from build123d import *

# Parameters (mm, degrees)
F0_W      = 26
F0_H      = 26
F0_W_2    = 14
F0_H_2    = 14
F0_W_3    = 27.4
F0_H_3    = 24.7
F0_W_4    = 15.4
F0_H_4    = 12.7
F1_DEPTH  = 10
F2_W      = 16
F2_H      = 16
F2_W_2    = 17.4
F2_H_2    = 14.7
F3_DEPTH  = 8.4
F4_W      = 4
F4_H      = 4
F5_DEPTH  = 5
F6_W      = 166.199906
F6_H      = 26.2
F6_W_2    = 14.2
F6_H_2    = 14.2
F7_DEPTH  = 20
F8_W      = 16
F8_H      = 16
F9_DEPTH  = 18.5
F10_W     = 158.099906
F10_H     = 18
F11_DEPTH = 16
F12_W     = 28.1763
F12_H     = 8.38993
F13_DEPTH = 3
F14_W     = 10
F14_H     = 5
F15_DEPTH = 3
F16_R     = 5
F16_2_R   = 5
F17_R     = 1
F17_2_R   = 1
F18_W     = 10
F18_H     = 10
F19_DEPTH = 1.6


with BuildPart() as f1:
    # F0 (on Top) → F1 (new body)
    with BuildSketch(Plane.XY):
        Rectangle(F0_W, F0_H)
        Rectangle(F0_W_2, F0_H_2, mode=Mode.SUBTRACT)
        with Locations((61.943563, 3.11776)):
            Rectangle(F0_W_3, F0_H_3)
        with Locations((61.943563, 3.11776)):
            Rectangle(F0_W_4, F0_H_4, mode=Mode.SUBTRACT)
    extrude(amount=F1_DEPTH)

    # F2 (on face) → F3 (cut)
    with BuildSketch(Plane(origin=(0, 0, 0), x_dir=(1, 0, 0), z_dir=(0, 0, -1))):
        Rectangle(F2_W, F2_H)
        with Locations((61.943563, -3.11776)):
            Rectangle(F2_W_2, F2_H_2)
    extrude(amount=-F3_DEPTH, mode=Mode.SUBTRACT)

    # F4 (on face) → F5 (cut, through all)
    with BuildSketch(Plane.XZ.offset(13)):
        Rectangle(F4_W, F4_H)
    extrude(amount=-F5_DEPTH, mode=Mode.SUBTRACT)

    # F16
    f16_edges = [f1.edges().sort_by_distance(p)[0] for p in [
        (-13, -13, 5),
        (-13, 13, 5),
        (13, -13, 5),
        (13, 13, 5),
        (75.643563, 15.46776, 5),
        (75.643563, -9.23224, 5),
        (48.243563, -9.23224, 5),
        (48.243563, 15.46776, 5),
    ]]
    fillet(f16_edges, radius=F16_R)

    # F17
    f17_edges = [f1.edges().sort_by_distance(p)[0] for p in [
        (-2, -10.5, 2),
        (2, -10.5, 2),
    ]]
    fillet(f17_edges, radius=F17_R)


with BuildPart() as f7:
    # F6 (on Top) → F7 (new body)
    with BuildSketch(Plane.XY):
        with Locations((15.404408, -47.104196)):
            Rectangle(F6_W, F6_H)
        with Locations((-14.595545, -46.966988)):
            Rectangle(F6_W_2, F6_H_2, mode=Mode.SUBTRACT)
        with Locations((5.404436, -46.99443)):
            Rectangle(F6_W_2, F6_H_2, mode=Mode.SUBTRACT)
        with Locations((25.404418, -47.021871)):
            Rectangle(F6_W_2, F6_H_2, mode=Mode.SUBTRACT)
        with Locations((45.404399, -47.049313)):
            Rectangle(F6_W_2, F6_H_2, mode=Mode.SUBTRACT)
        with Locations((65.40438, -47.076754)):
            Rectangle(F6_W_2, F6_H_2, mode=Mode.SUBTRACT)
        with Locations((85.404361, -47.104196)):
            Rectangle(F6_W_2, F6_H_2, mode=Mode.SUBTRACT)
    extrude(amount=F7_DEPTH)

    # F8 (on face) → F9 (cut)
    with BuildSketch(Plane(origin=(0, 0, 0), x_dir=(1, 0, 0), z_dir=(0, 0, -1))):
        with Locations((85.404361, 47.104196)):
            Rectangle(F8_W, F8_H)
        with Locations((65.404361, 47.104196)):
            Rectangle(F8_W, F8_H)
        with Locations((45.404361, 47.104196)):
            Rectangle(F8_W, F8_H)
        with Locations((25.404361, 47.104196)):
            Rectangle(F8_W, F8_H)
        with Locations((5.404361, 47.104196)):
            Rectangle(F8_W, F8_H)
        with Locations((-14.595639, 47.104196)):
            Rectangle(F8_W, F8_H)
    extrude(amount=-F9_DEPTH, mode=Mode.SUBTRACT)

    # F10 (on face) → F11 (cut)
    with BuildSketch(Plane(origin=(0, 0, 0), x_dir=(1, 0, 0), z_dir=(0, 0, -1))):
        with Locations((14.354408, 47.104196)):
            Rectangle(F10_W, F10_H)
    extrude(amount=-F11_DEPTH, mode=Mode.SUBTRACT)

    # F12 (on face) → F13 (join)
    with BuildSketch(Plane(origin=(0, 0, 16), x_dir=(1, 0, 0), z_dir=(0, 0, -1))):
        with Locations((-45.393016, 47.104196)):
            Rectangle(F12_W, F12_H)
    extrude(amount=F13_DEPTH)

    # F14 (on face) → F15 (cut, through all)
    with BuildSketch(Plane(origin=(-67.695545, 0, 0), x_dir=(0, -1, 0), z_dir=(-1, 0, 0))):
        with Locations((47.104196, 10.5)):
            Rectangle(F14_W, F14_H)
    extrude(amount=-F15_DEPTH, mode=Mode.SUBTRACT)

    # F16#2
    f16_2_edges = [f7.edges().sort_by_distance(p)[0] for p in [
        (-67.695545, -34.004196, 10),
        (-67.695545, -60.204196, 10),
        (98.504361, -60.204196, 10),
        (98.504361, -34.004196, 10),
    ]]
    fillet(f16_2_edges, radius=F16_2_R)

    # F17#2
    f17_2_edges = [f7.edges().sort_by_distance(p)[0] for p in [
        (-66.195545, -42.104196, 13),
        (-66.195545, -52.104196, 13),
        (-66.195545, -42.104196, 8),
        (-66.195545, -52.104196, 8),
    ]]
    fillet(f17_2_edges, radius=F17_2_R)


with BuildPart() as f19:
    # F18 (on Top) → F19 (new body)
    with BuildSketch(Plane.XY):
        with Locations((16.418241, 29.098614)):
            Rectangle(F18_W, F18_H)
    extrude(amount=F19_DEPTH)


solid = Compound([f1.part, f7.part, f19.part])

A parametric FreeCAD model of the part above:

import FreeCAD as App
import Part
import Sketcher

V = App.Vector
Q = App.Units.Quantity


def edges_at(feature, points):
    """Names of the edges that pass closest to the given points."""
    edges = feature.Shape.Edges
    near = lambda p: min(range(len(edges)), key=lambda i: edges[i].distToShape(Part.Vertex(*p))[0])
    return sorted({f"Edge{near(p) + 1}" for p in points})


def add_polygon(sketch, points):
    """Adds a closed chain of lines whose ends are joined by coincident constraints."""
    first, n = sketch.GeometryCount, len(points)
    for a, b in zip(points, points[1:] + points[:1]):
        sketch.addGeometry(Part.LineSegment(App.Vector(*a, 0), App.Vector(*b, 0)), False)
    for i in range(n):
        sketch.addConstraint(Sketcher.Constraint("Coincident", first + i, 2, first + (i + 1) % n, 1))

doc = App.newDocument("Part")
params = doc.addObject("Spreadsheet::Sheet", "Params")
for row, (alias, value) in enumerate([
    ("sketch1_width", "26 mm"),
    ("sketch1_width2", "14 mm"),
    ("sketch1_width3", "27.4 mm"),
    ("sketch1_width4", "15.4 mm"),
    ("sketch1_height", "24.7 mm"),
    ("pad1_length", "10 mm"),
    ("sketch2_width", "16 mm"),
    ("sketch2_width2", "17.4 mm"),
    ("sketch2_height", "14.7 mm"),
    ("pocket1_length", "8.4 mm"),
    ("sketch3_width", "4 mm"),
    ("pocket2_length", "5 mm"),
    ("fillet_radius", "5 mm"),
    ("fillet2_radius", "1 mm"),
    ("sketch4_width", "14.2 mm"),
    ("sketch4_height", "26.2 mm"),
    ("pad2_length", "20 mm"),
    ("sketch5_width", "16 mm"),
    ("pocket3_length", "18.5 mm"),
    ("sketch6_height", "18 mm"),
    ("pocket4_length", "16 mm"),
    ("pad3_length", "3 mm"),
    ("sketch8_width", "10 mm"),
    ("sketch8_height", "5 mm"),
    ("pocket5_length", "3 mm"),
    ("fillet3_radius", "5 mm"),
    ("fillet4_radius", "1 mm"),
    ("sketch9_width", "10 mm"),
    ("pad4_length", "1.6 mm"),
], start=1):
    params.set(f"A{row}", alias)
    params.set(f"B{row}", "=" + value)
    params.setAlias(f"B{row}", alias)

body = doc.addObject("PartDesign::Body", "Body")
body.AllowCompound = True

sketch1 = body.newObject("Sketcher::SketchObject", "Sketch")
sketch1.AttachmentSupport = (doc.getObject("XY_Plane"), [""])
sketch1.MapMode = "FlatFace"
add_polygon(sketch1, [(-13, 13), (-13, -13), (13, -13), (13, 13)])
add_polygon(sketch1, [(7, -7), (-7, -7), (-7, 7), (7, 7)])
add_polygon(sketch1, [(48, 15), (48, -9), (76, -9), (76, 15)])
add_polygon(sketch1, [(70, -3), (54, -3), (54, 9), (70, 9)])
sketch1.addConstraint(Sketcher.Constraint("Vertical", 0))
sketch1.addConstraint(Sketcher.Constraint("Horizontal", 1))
sketch1.addConstraint(Sketcher.Constraint("Vertical", 2))
sketch1.addConstraint(Sketcher.Constraint("Horizontal", 3))
sketch1.addConstraint(Sketcher.Constraint("Horizontal", 4))
sketch1.addConstraint(Sketcher.Constraint("Vertical", 5))
sketch1.addConstraint(Sketcher.Constraint("Horizontal", 6))
sketch1.addConstraint(Sketcher.Constraint("Vertical", 7))
sketch1.addConstraint(Sketcher.Constraint("Vertical", 8))
sketch1.addConstraint(Sketcher.Constraint("Horizontal", 9))
sketch1.addConstraint(Sketcher.Constraint("Vertical", 10))
sketch1.addConstraint(Sketcher.Constraint("Horizontal", 11))
sketch1.addConstraint(Sketcher.Constraint("Horizontal", 12))
sketch1.addConstraint(Sketcher.Constraint("Vertical", 13))
sketch1.addConstraint(Sketcher.Constraint("Horizontal", 14))
sketch1.addConstraint(Sketcher.Constraint("Vertical", 15))
sketch1.addConstraint(Sketcher.Constraint("Symmetric", 0, 2, 2, 2, -1, 1))
sketch1.addConstraint(Sketcher.Constraint("Symmetric", 4, 2, 6, 2, -1, 1))
sketch1.addConstraint(Sketcher.Constraint("Equal", 3, 0))
sketch1.addConstraint(Sketcher.Constraint("Equal", 6, 5))
sketch1.addConstraint(Sketcher.Constraint("DistanceX", 1, 1, 1, 2, Q("26 mm")))
sketch1.addConstraint(Sketcher.Constraint("DistanceX", 4, 2, 4, 1, Q("14 mm")))
sketch1.addConstraint(Sketcher.Constraint("DistanceX", 9, 1, 9, 2, Q("27.4 mm")))
sketch1.addConstraint(Sketcher.Constraint("DistanceX", 12, 2, 12, 1, Q("15.4 mm")))
sketch1.addConstraint(Sketcher.Constraint("DistanceY", 8, 2, 8, 1, Q("24.7 mm")))
sketch1.addConstraint(Sketcher.Constraint("DistanceY", 13, 1, 13, 2, Q("12.7 mm")))
sketch1.addConstraint(Sketcher.Constraint("DistanceX", 8, 2, 12, 2, Q("6 mm")))
sketch1.addConstraint(Sketcher.Constraint("DistanceY", 8, 2, 12, 2, Q("6 mm")))
sketch1.addConstraint(Sketcher.Constraint("DistanceY", 8, 2, -1, 1, Q("9.23224 mm")))
sketch1.addConstraint(Sketcher.Constraint("DistanceX", -1, 1, 8, 2, Q("48.243563 mm")))
sketch1.setExpression("Constraints[36]", "Params.sketch1_width")
sketch1.setExpression("Constraints[37]", "Params.sketch1_width2")
sketch1.setExpression("Constraints[38]", "Params.sketch1_width3")
sketch1.setExpression("Constraints[39]", "Params.sketch1_width4")
sketch1.setExpression("Constraints[40]", "Params.sketch1_height")
pad1 = body.newObject("PartDesign::Pad", "Pad")
pad1.Profile = sketch1
pad1.setExpression("Length", "Params.pad1_length")

sketch2 = body.newObject("Sketcher::SketchObject", "Sketch001")
sketch2.AttachmentSupport = (doc.getObject("XY_Plane"), [""])
sketch2.MapMode = "FlatFace"
add_polygon(sketch2, [(-8, -8), (-8, 8), (8, 8), (8, -8)])
add_polygon(sketch2, [(53, -4), (53, 10), (71, 10), (71, -4)])
sketch2.addConstraint(Sketcher.Constraint("Vertical", 0))
sketch2.addConstraint(Sketcher.Constraint("Horizontal", 1))
sketch2.addConstraint(Sketcher.Constraint("Vertical", 2))
sketch2.addConstraint(Sketcher.Constraint("Horizontal", 3))
sketch2.addConstraint(Sketcher.Constraint("Vertical", 4))
sketch2.addConstraint(Sketcher.Constraint("Horizontal", 5))
sketch2.addConstraint(Sketcher.Constraint("Vertical", 6))
sketch2.addConstraint(Sketcher.Constraint("Horizontal", 7))
sketch2.addConstraint(Sketcher.Constraint("Symmetric", 0, 2, 2, 2, -1, 1))
sketch2.addConstraint(Sketcher.Constraint("Equal", 3, 0))
sketch2.addConstraint(Sketcher.Constraint("DistanceX", 1, 1, 1, 2, Q("16 mm")))
sketch2.addConstraint(Sketcher.Constraint("DistanceX", 5, 1, 5, 2, Q("17.4 mm")))
sketch2.addConstraint(Sketcher.Constraint("DistanceY", 4, 1, 4, 2, Q("14.7 mm")))
sketch2.addConstraint(Sketcher.Constraint("DistanceY", -1, 1, 4, 2, Q("10.46776 mm")))
sketch2.addConstraint(Sketcher.Constraint("DistanceX", -1, 1, 4, 2, Q("53.243563 mm")))
sketch2.setExpression("Constraints[18]", "Params.sketch2_width")
sketch2.setExpression("Constraints[19]", "Params.sketch2_width2")
sketch2.setExpression("Constraints[20]", "Params.sketch2_height")
pocket1 = body.newObject("PartDesign::Pocket", "Pocket")
pocket1.Profile = sketch2
pocket1.setExpression("Length", "Params.pocket1_length")
pocket1.Reversed = True

sketch3 = body.newObject("Sketcher::SketchObject", "Sketch002")
sketch3.AttachmentSupport = (doc.getObject("XZ_Plane"), [""])
sketch3.MapMode = "FlatFace"
sketch3.AttachmentOffset = App.Placement(V(0, 0, 13), App.Rotation())
add_polygon(sketch3, [(-2, 2), (-2, -2), (2, -2), (2, 2)])
sketch3.addConstraint(Sketcher.Constraint("Vertical", 0))
sketch3.addConstraint(Sketcher.Constraint("Horizontal", 1))
sketch3.addConstraint(Sketcher.Constraint("Vertical", 2))
sketch3.addConstraint(Sketcher.Constraint("Horizontal", 3))
sketch3.addConstraint(Sketcher.Constraint("Symmetric", 0, 2, 2, 2, -1, 1))
sketch3.addConstraint(Sketcher.Constraint("Equal", 3, 0))
sketch3.addConstraint(Sketcher.Constraint("DistanceX", 1, 1, 1, 2, Q("4 mm")))
sketch3.setExpression("Constraints[10]", "Params.sketch3_width")
pocket2 = body.newObject("PartDesign::Pocket", "Pocket001")
pocket2.Profile = sketch3
pocket2.setExpression("Length", "Params.pocket2_length")
doc.recompute()

fillet = body.newObject("PartDesign::Fillet", "Fillet")
fillet.Base = (pocket2, edges_at(pocket2, [
    (-13, -13, 5),
    (-13, 13, 5),
    (13, -13, 5),
    (13, 13, 5),
    (75.644, 15.468, 5),
    (75.644, -9.232, 5),
    (48.244, -9.232, 5),
    (48.244, 15.468, 5),
]))
fillet.setExpression("Radius", "Params.fillet_radius")
doc.recompute()

fillet2 = body.newObject("PartDesign::Fillet", "Fillet001")
fillet2.Base = (fillet, edges_at(fillet, [(-2, -10.5, 2), (2, -10.5, 2)]))
fillet2.setExpression("Radius", "Params.fillet2_radius")
body2 = doc.addObject("PartDesign::Body", "Body001")

sketch4 = body2.newObject("Sketcher::SketchObject", "Sketch003")
sketch4.AttachmentSupport = (doc.getObject("XY_Plane001"), [""])
sketch4.MapMode = "FlatFace"
add_polygon(sketch4, [(-68, -34), (-68, -60), (99, -60), (99, -34)])
add_polygon(sketch4, [(53, -54), (38, -54), (38, -40), (53, -40)])
add_polygon(sketch4, [(73, -54), (58, -54), (58, -40), (73, -40)])
add_polygon(sketch4, [(93, -54), (78, -54), (78, -40), (93, -40)])
add_polygon(sketch4, [(-7, -54), (-22, -54), (-22, -40), (-7, -40)])
add_polygon(sketch4, [(13, -54), (-2, -54), (-2, -40), (13, -40)])
add_polygon(sketch4, [(33, -54), (18, -54), (18, -40), (33, -40)])
sketch4.addConstraint(Sketcher.Constraint("Vertical", 0))
sketch4.addConstraint(Sketcher.Constraint("Horizontal", 1))
sketch4.addConstraint(Sketcher.Constraint("Vertical", 2))
sketch4.addConstraint(Sketcher.Constraint("Horizontal", 3))
sketch4.addConstraint(Sketcher.Constraint("Horizontal", 4))
sketch4.addConstraint(Sketcher.Constraint("Vertical", 5))
sketch4.addConstraint(Sketcher.Constraint("Horizontal", 6))
sketch4.addConstraint(Sketcher.Constraint("Vertical", 7))
sketch4.addConstraint(Sketcher.Constraint("Horizontal", 8))
sketch4.addConstraint(Sketcher.Constraint("Vertical", 9))
sketch4.addConstraint(Sketcher.Constraint("Horizontal", 10))
sketch4.addConstraint(Sketcher.Constraint("Vertical", 11))
sketch4.addConstraint(Sketcher.Constraint("Horizontal", 12))
sketch4.addConstraint(Sketcher.Constraint("Vertical", 13))
sketch4.addConstraint(Sketcher.Constraint("Horizontal", 14))
sketch4.addConstraint(Sketcher.Constraint("Vertical", 15))
sketch4.addConstraint(Sketcher.Constraint("Horizontal", 16))
sketch4.addConstraint(Sketcher.Constraint("Vertical", 17))
sketch4.addConstraint(Sketcher.Constraint("Horizontal", 18))
sketch4.addConstraint(Sketcher.Constraint("Vertical", 19))
sketch4.addConstraint(Sketcher.Constraint("Horizontal", 20))
sketch4.addConstraint(Sketcher.Constraint("Vertical", 21))
sketch4.addConstraint(Sketcher.Constraint("Horizontal", 22))
sketch4.addConstraint(Sketcher.Constraint("Vertical", 23))
sketch4.addConstraint(Sketcher.Constraint("Horizontal", 24))
sketch4.addConstraint(Sketcher.Constraint("Vertical", 25))
sketch4.addConstraint(Sketcher.Constraint("Horizontal", 26))
sketch4.addConstraint(Sketcher.Constraint("Vertical", 27))
sketch4.addConstraint(Sketcher.Constraint("Equal", 6, 8))
sketch4.addConstraint(Sketcher.Constraint("Equal", 10, 12))
sketch4.addConstraint(Sketcher.Constraint("Equal", 14, 16))
sketch4.addConstraint(Sketcher.Constraint("Equal", 18, 20))
sketch4.addConstraint(Sketcher.Constraint("Equal", 22, 24))
sketch4.addConstraint(Sketcher.Constraint("Equal", 26, 5))
sketch4.addConstraint(Sketcher.Constraint("Equal", 7, 9))
sketch4.addConstraint(Sketcher.Constraint("Equal", 11, 13))
sketch4.addConstraint(Sketcher.Constraint("Equal", 15, 17))
sketch4.addConstraint(Sketcher.Constraint("Equal", 19, 21))
sketch4.addConstraint(Sketcher.Constraint("Equal", 23, 25))
sketch4.addConstraint(Sketcher.Constraint("DistanceX", 4, 2, 4, 1, Q("14.2 mm")))
sketch4.addConstraint(Sketcher.Constraint("DistanceY", 0, 2, 0, 1, Q("26.2 mm")))
sketch4.addConstraint(Sketcher.Constraint("DistanceY", 1, 2, 12, 2, Q("6 mm")))
sketch4.addConstraint(Sketcher.Constraint("DistanceX", 14, 2, 2, 2, Q("6 mm")))
sketch4.addConstraint(Sketcher.Constraint("DistanceX", 0, 2, 16, 2, Q("46 mm")))
sketch4.addConstraint(Sketcher.Constraint("DistanceX", -1, 1, 4, 2, Q("38.304399 mm")))
sketch4.addConstraint(Sketcher.Constraint("DistanceX", 1, 1, 1, 2, Q("166.199906 mm")))
sketch4.addConstraint(Sketcher.Constraint("DistanceX", -1, 1, 1, 2, Q("98.504361 mm")))
sketch4.addConstraint(Sketcher.Constraint("DistanceX", -1, 1, 8, 2, Q("58.30438 mm")))
sketch4.addConstraint(Sketcher.Constraint("DistanceY", 16, 2, -1, 1, Q("54.066988 mm")))
sketch4.addConstraint(Sketcher.Constraint("DistanceY", 20, 2, -1, 1, Q("54.09443 mm")))
sketch4.addConstraint(Sketcher.Constraint("DistanceY", 24, 2, -1, 1, Q("54.121871 mm")))
sketch4.addConstraint(Sketcher.Constraint("DistanceY", 8, 2, 7, 2, Q("0.027441 mm")))
sketch4.addConstraint(Sketcher.Constraint("DistanceY", 11, 2, 13, 2, Q("14.172558 mm")))
sketch4.addConstraint(Sketcher.Constraint("DistanceY", 0, 2, 16, 2, Q("6.137208 mm")))
sketch4.addConstraint(Sketcher.Constraint("DistanceX", 19, 2, 20, 2, Q("5.799981 mm")))
sketch4.addConstraint(Sketcher.Constraint("DistanceX", 23, 2, 24, 2, Q("5.799982 mm")))
sketch4.setExpression("Constraints[67]", "Params.sketch4_width")
sketch4.setExpression("Constraints[68]", "Params.sketch4_height")
pad2 = body2.newObject("PartDesign::Pad", "Pad001")
pad2.Profile = sketch4
pad2.setExpression("Length", "Params.pad2_length")

sketch5 = body2.newObject("Sketcher::SketchObject", "Sketch004")
sketch5.AttachmentSupport = (doc.getObject("XY_Plane001"), [""])
sketch5.MapMode = "FlatFace"
add_polygon(sketch5, [(77, -55), (77, -39), (93, -39), (93, -55)])
add_polygon(sketch5, [(57, -55), (57, -39), (73, -39), (73, -55)])
add_polygon(sketch5, [(37, -55), (37, -39), (53, -39), (53, -55)])
add_polygon(sketch5, [(17, -55), (17, -39), (33, -39), (33, -55)])
add_polygon(sketch5, [(-3, -55), (-3, -39), (13, -39), (13, -55)])
add_polygon(sketch5, [(-23, -55), (-23, -39), (-7, -39), (-7, -55)])
sketch5.addConstraint(Sketcher.Constraint("Vertical", 0))
sketch5.addConstraint(Sketcher.Constraint("Horizontal", 1))
sketch5.addConstraint(Sketcher.Constraint("Vertical", 2))
sketch5.addConstraint(Sketcher.Constraint("Horizontal", 3))
sketch5.addConstraint(Sketcher.Constraint("Vertical", 4))
sketch5.addConstraint(Sketcher.Constraint("Horizontal", 5))
sketch5.addConstraint(Sketcher.Constraint("Vertical", 6))
sketch5.addConstraint(Sketcher.Constraint("Horizontal", 7))
sketch5.addConstraint(Sketcher.Constraint("Vertical", 8))
sketch5.addConstraint(Sketcher.Constraint("Horizontal", 9))
sketch5.addConstraint(Sketcher.Constraint("Vertical", 10))
sketch5.addConstraint(Sketcher.Constraint("Horizontal", 11))
sketch5.addConstraint(Sketcher.Constraint("Vertical", 12))
sketch5.addConstraint(Sketcher.Constraint("Horizontal", 13))
sketch5.addConstraint(Sketcher.Constraint("Vertical", 14))
sketch5.addConstraint(Sketcher.Constraint("Horizontal", 15))
sketch5.addConstraint(Sketcher.Constraint("Vertical", 16))
sketch5.addConstraint(Sketcher.Constraint("Horizontal", 17))
sketch5.addConstraint(Sketcher.Constraint("Vertical", 18))
sketch5.addConstraint(Sketcher.Constraint("Horizontal", 19))
sketch5.addConstraint(Sketcher.Constraint("Vertical", 20))
sketch5.addConstraint(Sketcher.Constraint("Horizontal", 21))
sketch5.addConstraint(Sketcher.Constraint("Vertical", 22))
sketch5.addConstraint(Sketcher.Constraint("Horizontal", 23))
sketch5.addConstraint(Sketcher.Constraint("Horizontal", 1, 2, 4, 2))
sketch5.addConstraint(Sketcher.Constraint("Horizontal", 3, 2, 6, 2))
sketch5.addConstraint(Sketcher.Constraint("Horizontal", 5, 2, 8, 2))
sketch5.addConstraint(Sketcher.Constraint("Horizontal", 7, 2, 10, 2))
sketch5.addConstraint(Sketcher.Constraint("Horizontal", 9, 2, 12, 2))
sketch5.addConstraint(Sketcher.Constraint("Horizontal", 11, 2, 14, 2))
sketch5.addConstraint(Sketcher.Constraint("Horizontal", 13, 2, 16, 2))
sketch5.addConstraint(Sketcher.Constraint("Horizontal", 15, 2, 18, 2))
sketch5.addConstraint(Sketcher.Constraint("Horizontal", 17, 2, 20, 2))
sketch5.addConstraint(Sketcher.Constraint("Horizontal", 19, 2, 22, 2))
sketch5.addConstraint(Sketcher.Constraint("Equal", 3, 5))
sketch5.addConstraint(Sketcher.Constraint("Equal", 7, 9))
sketch5.addConstraint(Sketcher.Constraint("Equal", 11, 13))
sketch5.addConstraint(Sketcher.Constraint("Equal", 15, 17))
sketch5.addConstraint(Sketcher.Constraint("Equal", 19, 21))
sketch5.addConstraint(Sketcher.Constraint("Equal", 23, 0))
sketch5.addConstraint(Sketcher.Constraint("DistanceX", 1, 1, 1, 2, Q("16 mm")))
sketch5.addConstraint(Sketcher.Constraint("DistanceX", 4, 2, 0, 2, Q("20 mm")))
sketch5.addConstraint(Sketcher.Constraint("DistanceX", 8, 2, 4, 2, Q("20 mm")))
sketch5.addConstraint(Sketcher.Constraint("DistanceX", 12, 2, 8, 2, Q("20 mm")))
sketch5.addConstraint(Sketcher.Constraint("DistanceX", 16, 2, 12, 2, Q("20 mm")))
sketch5.addConstraint(Sketcher.Constraint("DistanceX", 20, 2, 16, 2, Q("20 mm")))
sketch5.addConstraint(Sketcher.Constraint("DistanceX", -1, 1, 0, 2, Q("77.404361 mm")))
sketch5.addConstraint(Sketcher.Constraint("DistanceY", 0, 2, -1, 1, Q("39.104196 mm")))
sketch5.setExpression("Constraints[64]", "Params.sketch5_width")
pocket3 = body2.newObject("PartDesign::Pocket", "Pocket002")
pocket3.Profile = sketch5
pocket3.setExpression("Length", "Params.pocket3_length")
pocket3.Reversed = True

sketch6 = body2.newObject("Sketcher::SketchObject", "Sketch005")
sketch6.AttachmentSupport = (doc.getObject("XY_Plane001"), [""])
sketch6.MapMode = "FlatFace"
add_polygon(sketch6, [(-65, -56), (-65, -38), (93, -38), (93, -56)])
sketch6.addConstraint(Sketcher.Constraint("Vertical", 0))
sketch6.addConstraint(Sketcher.Constraint("Horizontal", 1))
sketch6.addConstraint(Sketcher.Constraint("Vertical", 2))
sketch6.addConstraint(Sketcher.Constraint("Horizontal", 3))
sketch6.addConstraint(Sketcher.Constraint("DistanceY", 0, 1, 0, 2, Q("18 mm")))
sketch6.addConstraint(Sketcher.Constraint("DistanceX", 1, 1, 1, 2, Q("158.099906 mm")))
sketch6.addConstraint(Sketcher.Constraint("DistanceX", -1, 1, 1, 2, Q("93.404361 mm")))
sketch6.addConstraint(Sketcher.Constraint("DistanceY", 0, 2, -1, 1, Q("38.104196 mm")))
sketch6.setExpression("Constraints[8]", "Params.sketch6_height")
pocket4 = body2.newObject("PartDesign::Pocket", "Pocket003")
pocket4.Profile = sketch6
pocket4.setExpression("Length", "Params.pocket4_length")
pocket4.Reversed = True

sketch7 = body2.newObject("Sketcher::SketchObject", "Sketch006")
sketch7.AttachmentSupport = (doc.getObject("XY_Plane001"), [""])
sketch7.MapMode = "FlatFace"
sketch7.AttachmentOffset = App.Placement(V(0, 0, 16), App.Rotation())
add_polygon(sketch7, [(-59, -51), (-59, -43), (-31, -43), (-31, -51)])
sketch7.addConstraint(Sketcher.Constraint("Vertical", 0))
sketch7.addConstraint(Sketcher.Constraint("Horizontal", 1))
sketch7.addConstraint(Sketcher.Constraint("Vertical", 2))
sketch7.addConstraint(Sketcher.Constraint("Horizontal", 3))
sketch7.addConstraint(Sketcher.Constraint("DistanceX", 1, 1, 1, 2, Q("28.1763 mm")))
sketch7.addConstraint(Sketcher.Constraint("DistanceY", 0, 1, 0, 2, Q("8.38993 mm")))
sketch7.addConstraint(Sketcher.Constraint("DistanceY", 0, 2, -1, 1, Q("42.909231 mm")))
sketch7.addConstraint(Sketcher.Constraint("DistanceX", 0, 2, -1, 1, Q("59.481166 mm")))
pad3 = body2.newObject("PartDesign::Pad", "Pad002")
pad3.Profile = sketch7
pad3.setExpression("Length", "Params.pad3_length")
pad3.Reversed = True

sketch8 = body2.newObject("Sketcher::SketchObject", "Sketch007")
sketch8.AttachmentSupport = (doc.getObject("YZ_Plane001"), [""])
sketch8.MapMode = "FlatFace"
sketch8.AttachmentOffset = App.Placement(V(0, 0, -67.695545), App.Rotation())
add_polygon(sketch8, [(-42, 13), (-42, 8), (-52, 8), (-52, 13)])
sketch8.addConstraint(Sketcher.Constraint("Vertical", 0))
sketch8.addConstraint(Sketcher.Constraint("Horizontal", 1))
sketch8.addConstraint(Sketcher.Constraint("Vertical", 2))
sketch8.addConstraint(Sketcher.Constraint("Horizontal", 3))
sketch8.addConstraint(Sketcher.Constraint("DistanceX", 1, 2, 1, 1, Q("10 mm")))
sketch8.addConstraint(Sketcher.Constraint("DistanceY", 0, 2, 0, 1, Q("5 mm")))
sketch8.addConstraint(Sketcher.Constraint("DistanceY", -1, 1, 0, 2, Q("8 mm")))
sketch8.addConstraint(Sketcher.Constraint("DistanceX", 0, 2, -1, 1, Q("42.104196 mm")))
sketch8.setExpression("Constraints[8]", "Params.sketch8_width")
sketch8.setExpression("Constraints[9]", "Params.sketch8_height")
pocket5 = body2.newObject("PartDesign::Pocket", "Pocket004")
pocket5.Profile = sketch8
pocket5.setExpression("Length", "Params.pocket5_length")
pocket5.Reversed = True
doc.recompute()

fillet3 = body2.newObject("PartDesign::Fillet", "Fillet002")
fillet3.Base = (pocket5, edges_at(pocket5, [
    (-67.696, -34.004, 10),
    (-67.696, -60.204, 10),
    (98.504, -60.204, 10),
    (98.504, -34.004, 10),
]))
fillet3.setExpression("Radius", "Params.fillet3_radius")
doc.recompute()

fillet4 = body2.newObject("PartDesign::Fillet", "Fillet003")
fillet4.Base = (fillet3, edges_at(fillet3, [
    (-66.196, -42.104, 13),
    (-66.196, -52.104, 13),
    (-66.196, -42.104, 8),
    (-66.196, -52.104, 8),
]))
fillet4.setExpression("Radius", "Params.fillet4_radius")
body3 = doc.addObject("PartDesign::Body", "Body002")

sketch9 = body3.newObject("Sketcher::SketchObject", "Sketch008")
sketch9.AttachmentSupport = (doc.getObject("XY_Plane002"), [""])
sketch9.MapMode = "FlatFace"
add_polygon(sketch9, [(11, 34), (11, 24), (21, 24), (21, 34)])
sketch9.addConstraint(Sketcher.Constraint("Vertical", 0))
sketch9.addConstraint(Sketcher.Constraint("Horizontal", 1))
sketch9.addConstraint(Sketcher.Constraint("Vertical", 2))
sketch9.addConstraint(Sketcher.Constraint("Horizontal", 3))
sketch9.addConstraint(Sketcher.Constraint("Equal", 3, 0))
sketch9.addConstraint(Sketcher.Constraint("DistanceX", 1, 1, 1, 2, Q("10 mm")))
sketch9.addConstraint(Sketcher.Constraint("DistanceX", -1, 1, 0, 2, Q("11.418241 mm")))
sketch9.addConstraint(Sketcher.Constraint("DistanceY", -1, 1, 0, 2, Q("24.098614 mm")))
sketch9.setExpression("Constraints[9]", "Params.sketch9_width")
pad4 = body3.newObject("PartDesign::Pad", "Pad003")
pad4.Profile = sketch9
pad4.setExpression("Length", "Params.pad4_length")

doc.recompute()
